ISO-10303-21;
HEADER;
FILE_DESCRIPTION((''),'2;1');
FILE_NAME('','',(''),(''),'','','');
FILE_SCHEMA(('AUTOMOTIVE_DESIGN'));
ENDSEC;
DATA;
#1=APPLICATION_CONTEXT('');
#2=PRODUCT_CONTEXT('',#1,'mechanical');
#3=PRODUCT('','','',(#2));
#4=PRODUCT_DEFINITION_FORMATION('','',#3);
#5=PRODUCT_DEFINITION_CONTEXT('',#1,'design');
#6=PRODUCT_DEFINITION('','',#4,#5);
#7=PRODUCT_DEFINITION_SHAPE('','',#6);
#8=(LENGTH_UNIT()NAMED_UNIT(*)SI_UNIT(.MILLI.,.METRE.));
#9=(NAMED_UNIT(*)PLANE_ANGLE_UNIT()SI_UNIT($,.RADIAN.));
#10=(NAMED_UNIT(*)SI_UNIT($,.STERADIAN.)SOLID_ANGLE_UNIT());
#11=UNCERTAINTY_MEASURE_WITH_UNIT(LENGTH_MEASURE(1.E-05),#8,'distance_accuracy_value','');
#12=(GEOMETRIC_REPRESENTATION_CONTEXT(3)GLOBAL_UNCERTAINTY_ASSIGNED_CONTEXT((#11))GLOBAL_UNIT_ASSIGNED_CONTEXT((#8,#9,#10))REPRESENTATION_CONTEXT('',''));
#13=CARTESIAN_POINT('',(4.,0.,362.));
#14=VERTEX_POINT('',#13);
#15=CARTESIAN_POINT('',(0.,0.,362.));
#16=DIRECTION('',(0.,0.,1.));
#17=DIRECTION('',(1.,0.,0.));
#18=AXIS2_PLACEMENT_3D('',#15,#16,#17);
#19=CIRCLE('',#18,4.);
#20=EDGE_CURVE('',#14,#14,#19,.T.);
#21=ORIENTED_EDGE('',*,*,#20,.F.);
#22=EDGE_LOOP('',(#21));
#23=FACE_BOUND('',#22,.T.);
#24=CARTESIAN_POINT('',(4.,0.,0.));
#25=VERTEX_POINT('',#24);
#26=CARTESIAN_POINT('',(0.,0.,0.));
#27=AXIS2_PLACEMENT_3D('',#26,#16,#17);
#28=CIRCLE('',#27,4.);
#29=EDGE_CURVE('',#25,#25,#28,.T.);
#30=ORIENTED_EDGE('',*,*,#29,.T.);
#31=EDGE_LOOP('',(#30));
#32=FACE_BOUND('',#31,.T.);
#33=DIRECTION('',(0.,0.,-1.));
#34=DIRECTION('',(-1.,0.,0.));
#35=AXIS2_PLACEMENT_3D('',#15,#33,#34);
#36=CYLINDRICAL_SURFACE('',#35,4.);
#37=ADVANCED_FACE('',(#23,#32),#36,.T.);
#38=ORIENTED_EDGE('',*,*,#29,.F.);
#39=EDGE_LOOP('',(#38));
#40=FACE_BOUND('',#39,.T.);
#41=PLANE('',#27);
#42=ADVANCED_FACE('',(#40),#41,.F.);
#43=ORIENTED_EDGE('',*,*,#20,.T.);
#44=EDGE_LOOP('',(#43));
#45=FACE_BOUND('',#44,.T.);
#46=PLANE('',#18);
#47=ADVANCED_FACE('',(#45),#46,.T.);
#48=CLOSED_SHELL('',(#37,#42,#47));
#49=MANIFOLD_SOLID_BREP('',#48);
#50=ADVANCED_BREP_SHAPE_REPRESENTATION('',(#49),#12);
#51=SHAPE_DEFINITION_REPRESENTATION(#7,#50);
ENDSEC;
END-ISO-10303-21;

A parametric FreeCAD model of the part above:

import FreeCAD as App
import Part
import Sketcher

V = App.Vector

doc = App.newDocument("Part")
body = doc.addObject("PartDesign::Body", "Body")

# Sketch on XY plane
sketch1 = body.newObject("Sketcher::SketchObject", "Sketch")
sketch1.AttachmentSupport = (doc.getObject("XY_Plane"), [""])
sketch1.MapMode = "FlatFace"
sketch1.addGeometry(Part.Circle(V(0, 0, 0), V(0, 0, 1), 4), False)
sketch1.addConstraint([
    Sketcher.Constraint("Coincident", 0, 3, -1, 1),
    Sketcher.Constraint("Diameter", 0, 8.0),
])
pad1 = body.newObject("PartDesign::Pad", "Pad")
pad1.Profile = sketch1
pad1.Length = 362

doc.recompute()
